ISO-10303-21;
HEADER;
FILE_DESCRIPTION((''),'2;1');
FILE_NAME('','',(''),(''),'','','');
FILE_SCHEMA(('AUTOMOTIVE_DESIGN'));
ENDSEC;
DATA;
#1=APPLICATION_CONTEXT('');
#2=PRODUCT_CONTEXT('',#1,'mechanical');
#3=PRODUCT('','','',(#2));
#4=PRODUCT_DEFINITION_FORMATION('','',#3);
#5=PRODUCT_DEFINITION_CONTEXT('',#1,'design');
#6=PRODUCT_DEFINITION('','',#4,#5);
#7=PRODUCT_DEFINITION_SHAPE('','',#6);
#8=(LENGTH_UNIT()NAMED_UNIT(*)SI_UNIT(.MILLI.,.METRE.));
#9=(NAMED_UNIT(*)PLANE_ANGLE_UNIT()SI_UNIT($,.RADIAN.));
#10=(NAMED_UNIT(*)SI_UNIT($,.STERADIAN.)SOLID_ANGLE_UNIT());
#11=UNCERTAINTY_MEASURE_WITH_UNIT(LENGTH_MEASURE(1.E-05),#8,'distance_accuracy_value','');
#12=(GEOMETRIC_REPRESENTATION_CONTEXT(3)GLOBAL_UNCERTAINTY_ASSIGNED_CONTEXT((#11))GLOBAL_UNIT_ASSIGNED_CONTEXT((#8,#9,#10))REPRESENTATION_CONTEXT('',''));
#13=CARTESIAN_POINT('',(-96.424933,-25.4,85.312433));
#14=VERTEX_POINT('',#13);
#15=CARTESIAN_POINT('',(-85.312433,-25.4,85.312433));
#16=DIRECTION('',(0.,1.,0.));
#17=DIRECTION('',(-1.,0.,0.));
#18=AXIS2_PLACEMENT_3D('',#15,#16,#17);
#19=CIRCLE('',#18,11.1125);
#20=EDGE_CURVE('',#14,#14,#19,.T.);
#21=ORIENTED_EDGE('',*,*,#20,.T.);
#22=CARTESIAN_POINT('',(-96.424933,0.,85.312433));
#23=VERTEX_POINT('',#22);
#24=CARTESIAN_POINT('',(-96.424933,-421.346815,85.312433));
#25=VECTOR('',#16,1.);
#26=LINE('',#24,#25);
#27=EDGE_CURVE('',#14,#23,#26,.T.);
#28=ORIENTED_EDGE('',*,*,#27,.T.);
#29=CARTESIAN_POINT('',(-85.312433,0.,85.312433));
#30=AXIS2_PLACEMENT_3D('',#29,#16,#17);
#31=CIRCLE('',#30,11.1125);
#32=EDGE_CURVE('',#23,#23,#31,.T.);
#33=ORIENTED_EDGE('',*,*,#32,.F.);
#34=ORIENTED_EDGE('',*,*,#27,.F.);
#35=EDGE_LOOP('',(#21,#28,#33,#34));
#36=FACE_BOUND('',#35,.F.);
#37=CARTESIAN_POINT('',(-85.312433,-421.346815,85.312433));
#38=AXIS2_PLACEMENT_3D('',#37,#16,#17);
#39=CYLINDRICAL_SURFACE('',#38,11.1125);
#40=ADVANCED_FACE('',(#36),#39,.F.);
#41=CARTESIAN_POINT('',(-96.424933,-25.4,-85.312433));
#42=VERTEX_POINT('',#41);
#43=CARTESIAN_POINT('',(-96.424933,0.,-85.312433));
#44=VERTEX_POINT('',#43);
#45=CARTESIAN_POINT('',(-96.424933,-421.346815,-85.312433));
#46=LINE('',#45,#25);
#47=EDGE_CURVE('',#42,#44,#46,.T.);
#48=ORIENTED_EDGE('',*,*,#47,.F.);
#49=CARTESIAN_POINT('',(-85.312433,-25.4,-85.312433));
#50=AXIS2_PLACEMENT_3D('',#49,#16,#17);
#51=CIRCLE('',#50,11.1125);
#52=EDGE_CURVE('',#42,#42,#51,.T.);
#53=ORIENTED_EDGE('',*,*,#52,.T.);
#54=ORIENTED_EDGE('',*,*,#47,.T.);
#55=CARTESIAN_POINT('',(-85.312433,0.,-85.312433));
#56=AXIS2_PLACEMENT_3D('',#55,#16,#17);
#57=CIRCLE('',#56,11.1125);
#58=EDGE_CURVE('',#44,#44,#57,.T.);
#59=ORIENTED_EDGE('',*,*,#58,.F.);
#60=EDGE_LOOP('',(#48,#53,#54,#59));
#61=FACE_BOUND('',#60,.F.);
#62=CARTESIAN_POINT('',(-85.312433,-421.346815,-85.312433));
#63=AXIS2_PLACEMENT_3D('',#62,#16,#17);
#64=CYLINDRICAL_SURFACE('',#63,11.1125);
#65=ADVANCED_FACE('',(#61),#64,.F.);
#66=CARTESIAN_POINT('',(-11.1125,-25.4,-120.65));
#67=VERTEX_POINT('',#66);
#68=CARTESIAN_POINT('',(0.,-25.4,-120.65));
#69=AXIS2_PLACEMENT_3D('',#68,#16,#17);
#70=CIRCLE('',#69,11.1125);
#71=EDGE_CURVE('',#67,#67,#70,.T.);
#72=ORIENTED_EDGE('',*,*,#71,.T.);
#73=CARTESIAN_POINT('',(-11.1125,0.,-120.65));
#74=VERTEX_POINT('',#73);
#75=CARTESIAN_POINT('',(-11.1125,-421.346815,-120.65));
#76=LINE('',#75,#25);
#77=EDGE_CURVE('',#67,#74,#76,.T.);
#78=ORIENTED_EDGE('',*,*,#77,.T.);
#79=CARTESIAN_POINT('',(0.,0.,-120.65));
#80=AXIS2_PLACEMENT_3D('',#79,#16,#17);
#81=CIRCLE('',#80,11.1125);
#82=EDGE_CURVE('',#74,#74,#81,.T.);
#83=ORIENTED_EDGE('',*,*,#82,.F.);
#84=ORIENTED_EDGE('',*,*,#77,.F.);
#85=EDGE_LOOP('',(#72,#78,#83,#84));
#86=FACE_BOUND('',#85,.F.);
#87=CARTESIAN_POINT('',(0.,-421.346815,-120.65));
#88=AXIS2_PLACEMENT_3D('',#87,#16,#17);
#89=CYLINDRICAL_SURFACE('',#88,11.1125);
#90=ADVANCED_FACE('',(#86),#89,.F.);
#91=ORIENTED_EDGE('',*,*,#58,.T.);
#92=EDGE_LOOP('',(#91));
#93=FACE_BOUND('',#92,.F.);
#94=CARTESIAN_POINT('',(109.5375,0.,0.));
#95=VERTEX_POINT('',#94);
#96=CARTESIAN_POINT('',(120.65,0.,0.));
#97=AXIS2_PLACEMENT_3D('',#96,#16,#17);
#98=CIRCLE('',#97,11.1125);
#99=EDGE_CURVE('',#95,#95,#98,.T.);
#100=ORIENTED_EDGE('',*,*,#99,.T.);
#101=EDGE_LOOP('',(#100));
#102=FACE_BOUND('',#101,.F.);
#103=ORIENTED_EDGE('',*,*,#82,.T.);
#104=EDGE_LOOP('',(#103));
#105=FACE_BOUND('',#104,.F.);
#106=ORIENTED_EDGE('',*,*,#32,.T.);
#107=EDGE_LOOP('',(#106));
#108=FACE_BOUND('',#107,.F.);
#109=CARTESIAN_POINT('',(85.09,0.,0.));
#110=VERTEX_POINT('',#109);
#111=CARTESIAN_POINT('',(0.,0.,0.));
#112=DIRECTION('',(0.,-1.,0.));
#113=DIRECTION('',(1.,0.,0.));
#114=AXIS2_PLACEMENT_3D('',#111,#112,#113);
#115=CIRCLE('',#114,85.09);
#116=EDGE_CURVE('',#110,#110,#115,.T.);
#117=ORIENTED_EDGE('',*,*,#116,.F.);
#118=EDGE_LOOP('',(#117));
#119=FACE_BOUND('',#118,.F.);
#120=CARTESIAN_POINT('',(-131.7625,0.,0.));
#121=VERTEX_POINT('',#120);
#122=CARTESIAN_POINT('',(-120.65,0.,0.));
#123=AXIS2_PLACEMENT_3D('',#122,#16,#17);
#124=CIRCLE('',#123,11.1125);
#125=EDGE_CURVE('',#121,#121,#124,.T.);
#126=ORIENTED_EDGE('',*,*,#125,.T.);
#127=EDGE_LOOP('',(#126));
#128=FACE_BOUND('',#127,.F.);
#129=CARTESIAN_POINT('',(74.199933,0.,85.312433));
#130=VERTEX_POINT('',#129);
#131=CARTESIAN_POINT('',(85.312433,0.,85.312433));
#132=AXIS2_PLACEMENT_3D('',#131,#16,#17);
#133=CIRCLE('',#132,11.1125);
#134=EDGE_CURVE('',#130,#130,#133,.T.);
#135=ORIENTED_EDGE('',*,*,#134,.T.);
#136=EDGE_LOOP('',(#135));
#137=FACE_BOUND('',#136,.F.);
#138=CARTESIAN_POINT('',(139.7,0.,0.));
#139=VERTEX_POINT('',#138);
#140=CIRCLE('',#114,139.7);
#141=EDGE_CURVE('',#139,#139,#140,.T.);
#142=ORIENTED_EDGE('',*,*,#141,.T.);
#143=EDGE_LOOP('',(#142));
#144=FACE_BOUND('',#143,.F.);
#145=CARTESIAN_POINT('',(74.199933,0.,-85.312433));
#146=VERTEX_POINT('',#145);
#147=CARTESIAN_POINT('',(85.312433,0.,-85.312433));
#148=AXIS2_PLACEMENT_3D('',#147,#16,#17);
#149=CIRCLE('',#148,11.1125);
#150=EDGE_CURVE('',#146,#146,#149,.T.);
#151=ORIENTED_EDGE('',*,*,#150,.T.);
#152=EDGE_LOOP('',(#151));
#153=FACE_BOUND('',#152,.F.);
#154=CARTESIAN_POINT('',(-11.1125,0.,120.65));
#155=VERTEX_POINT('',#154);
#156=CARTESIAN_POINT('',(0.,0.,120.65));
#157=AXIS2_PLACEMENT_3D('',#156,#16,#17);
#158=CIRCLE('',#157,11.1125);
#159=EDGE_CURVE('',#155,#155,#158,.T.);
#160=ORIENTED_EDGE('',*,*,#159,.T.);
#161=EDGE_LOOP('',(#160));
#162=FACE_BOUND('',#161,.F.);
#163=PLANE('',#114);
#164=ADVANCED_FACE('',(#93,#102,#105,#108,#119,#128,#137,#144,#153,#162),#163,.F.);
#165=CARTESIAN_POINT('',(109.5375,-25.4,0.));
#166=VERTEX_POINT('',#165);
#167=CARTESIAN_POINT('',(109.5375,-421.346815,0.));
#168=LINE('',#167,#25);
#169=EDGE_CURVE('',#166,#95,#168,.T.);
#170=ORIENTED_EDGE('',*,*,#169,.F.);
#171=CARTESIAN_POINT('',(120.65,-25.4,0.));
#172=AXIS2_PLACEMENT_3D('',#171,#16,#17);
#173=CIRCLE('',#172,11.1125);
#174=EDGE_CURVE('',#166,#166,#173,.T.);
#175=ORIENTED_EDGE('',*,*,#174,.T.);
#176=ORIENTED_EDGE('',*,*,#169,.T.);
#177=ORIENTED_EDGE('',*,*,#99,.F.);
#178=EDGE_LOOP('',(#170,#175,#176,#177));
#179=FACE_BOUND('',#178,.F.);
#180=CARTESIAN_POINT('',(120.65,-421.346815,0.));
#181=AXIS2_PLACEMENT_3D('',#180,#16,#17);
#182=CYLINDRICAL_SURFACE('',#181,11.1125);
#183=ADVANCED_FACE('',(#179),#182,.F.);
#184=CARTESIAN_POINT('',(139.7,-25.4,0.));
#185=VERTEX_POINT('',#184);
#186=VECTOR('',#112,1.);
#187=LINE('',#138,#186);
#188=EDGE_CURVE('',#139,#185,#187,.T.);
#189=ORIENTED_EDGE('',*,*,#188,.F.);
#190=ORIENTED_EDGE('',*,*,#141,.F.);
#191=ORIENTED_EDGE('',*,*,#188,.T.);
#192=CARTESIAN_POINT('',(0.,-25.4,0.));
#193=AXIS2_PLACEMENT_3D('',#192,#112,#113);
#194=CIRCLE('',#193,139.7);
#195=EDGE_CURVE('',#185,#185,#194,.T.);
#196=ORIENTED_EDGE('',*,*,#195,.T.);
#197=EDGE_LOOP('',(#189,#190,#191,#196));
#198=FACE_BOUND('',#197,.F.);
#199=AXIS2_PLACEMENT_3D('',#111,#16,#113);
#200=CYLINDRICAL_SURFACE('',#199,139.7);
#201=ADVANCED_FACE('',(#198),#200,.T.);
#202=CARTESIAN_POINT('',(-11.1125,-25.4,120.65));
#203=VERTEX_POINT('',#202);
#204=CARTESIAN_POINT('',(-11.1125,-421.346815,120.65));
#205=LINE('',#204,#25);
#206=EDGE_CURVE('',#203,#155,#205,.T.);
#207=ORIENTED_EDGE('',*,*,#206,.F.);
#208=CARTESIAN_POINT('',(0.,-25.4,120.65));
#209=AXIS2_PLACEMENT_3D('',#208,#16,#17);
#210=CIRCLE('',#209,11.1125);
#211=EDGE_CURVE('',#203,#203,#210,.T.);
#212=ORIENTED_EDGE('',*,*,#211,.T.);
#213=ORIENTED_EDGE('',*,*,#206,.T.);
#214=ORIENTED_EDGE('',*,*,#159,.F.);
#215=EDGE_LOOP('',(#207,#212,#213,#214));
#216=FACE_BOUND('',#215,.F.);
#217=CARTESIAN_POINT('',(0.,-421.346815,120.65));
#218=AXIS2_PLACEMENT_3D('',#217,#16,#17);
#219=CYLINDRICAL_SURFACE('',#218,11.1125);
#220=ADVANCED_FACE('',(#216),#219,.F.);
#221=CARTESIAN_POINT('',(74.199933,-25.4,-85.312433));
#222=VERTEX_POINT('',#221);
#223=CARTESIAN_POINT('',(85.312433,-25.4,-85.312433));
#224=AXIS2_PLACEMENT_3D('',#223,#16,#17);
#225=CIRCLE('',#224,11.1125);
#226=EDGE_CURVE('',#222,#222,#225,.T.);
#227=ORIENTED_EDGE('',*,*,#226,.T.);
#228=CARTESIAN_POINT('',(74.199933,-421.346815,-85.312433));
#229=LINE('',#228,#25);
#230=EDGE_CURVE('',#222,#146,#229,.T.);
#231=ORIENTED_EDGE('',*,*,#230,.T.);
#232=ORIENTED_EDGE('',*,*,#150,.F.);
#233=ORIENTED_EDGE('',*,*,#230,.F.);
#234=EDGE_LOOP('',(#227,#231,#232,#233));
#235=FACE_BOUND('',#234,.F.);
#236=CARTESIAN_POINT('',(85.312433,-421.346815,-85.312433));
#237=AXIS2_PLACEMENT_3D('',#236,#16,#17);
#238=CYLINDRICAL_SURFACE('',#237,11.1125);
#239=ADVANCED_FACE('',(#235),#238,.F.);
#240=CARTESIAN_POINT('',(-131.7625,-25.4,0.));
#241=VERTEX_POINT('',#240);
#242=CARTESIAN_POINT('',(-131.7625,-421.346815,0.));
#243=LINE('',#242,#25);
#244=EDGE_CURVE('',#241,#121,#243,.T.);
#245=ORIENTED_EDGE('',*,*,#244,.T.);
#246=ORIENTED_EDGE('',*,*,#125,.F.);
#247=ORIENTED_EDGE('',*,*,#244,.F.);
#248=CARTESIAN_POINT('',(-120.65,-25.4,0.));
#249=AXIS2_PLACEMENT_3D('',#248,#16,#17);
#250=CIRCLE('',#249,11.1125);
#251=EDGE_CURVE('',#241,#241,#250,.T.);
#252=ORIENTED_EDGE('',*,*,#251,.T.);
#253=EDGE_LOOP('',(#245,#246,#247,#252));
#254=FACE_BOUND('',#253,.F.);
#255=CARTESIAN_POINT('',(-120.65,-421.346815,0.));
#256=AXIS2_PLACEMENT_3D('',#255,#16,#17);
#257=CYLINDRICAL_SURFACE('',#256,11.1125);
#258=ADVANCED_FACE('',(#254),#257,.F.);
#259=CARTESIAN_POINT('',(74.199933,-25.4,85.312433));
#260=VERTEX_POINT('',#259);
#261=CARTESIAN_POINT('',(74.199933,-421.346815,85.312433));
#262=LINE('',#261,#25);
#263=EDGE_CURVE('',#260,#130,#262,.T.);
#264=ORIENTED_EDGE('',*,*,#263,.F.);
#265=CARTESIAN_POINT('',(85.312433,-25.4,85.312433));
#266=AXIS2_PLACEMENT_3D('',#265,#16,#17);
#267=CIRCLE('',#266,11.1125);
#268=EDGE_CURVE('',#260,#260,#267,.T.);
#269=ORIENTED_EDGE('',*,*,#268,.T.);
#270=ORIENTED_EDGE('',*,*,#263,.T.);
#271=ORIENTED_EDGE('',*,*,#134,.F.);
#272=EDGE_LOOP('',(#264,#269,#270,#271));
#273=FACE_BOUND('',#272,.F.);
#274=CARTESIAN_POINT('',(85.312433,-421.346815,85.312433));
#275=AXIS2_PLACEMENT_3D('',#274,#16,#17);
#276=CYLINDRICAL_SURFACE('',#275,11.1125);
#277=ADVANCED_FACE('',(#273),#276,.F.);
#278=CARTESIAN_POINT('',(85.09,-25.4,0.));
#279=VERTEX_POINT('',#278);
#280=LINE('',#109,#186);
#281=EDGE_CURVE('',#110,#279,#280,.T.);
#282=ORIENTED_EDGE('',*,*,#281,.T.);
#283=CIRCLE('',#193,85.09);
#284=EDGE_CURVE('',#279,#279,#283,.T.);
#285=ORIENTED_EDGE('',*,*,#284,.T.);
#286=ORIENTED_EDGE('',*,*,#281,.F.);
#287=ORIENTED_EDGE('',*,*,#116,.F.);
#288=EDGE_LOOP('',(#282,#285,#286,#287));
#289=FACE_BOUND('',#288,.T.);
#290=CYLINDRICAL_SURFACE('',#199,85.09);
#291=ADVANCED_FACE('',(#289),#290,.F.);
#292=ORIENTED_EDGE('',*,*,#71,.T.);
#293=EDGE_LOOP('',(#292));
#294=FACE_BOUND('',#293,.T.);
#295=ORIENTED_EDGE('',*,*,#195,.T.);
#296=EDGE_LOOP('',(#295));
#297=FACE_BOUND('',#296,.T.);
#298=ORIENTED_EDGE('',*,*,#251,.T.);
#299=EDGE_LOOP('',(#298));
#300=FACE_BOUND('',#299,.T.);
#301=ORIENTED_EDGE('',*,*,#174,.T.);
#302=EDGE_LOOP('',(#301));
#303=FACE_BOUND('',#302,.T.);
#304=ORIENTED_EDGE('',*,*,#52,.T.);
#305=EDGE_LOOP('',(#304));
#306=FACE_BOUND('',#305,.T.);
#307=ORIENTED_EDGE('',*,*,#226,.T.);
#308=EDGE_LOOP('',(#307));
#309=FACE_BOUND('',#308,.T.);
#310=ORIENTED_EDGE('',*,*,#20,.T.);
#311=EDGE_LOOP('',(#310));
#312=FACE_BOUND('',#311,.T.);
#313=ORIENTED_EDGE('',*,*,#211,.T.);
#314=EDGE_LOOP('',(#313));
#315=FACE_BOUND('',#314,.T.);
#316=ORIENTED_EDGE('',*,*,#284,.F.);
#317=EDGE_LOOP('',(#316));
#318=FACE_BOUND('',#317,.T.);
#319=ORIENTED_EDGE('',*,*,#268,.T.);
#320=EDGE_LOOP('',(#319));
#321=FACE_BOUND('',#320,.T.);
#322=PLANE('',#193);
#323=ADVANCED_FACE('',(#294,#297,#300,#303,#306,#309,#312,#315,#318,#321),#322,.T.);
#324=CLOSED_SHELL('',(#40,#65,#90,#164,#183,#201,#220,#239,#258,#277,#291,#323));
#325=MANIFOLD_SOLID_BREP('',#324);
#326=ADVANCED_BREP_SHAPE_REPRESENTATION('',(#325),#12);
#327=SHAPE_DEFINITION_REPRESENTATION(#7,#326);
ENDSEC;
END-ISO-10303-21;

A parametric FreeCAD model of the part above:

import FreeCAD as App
import Part
import Sketcher

V = App.Vector
Q = App.Units.Quantity

doc = App.newDocument("Part")
body = doc.addObject("PartDesign::Body", "Body")

# Sketch on XZ plane
sketch1 = doc.addObject("Sketcher::SketchObject", "Sketch")
body.addObject(sketch1)
sketch1.AttachmentSupport = (doc.XZ_Plane, [""])
sketch1.MapMode = "FlatFace"
sketch1.addGeometry(Part.Circle(V(0, 0, 0), V(0, 0, 1), 139.7), False)
sketch1.addGeometry(Part.Circle(V(0, 0, 0), V(0, 0, 1), 85.09), False)
sketch1.addConstraint(Sketcher.Constraint("Coincident", 0, 3, -1, 1))
sketch1.addConstraint(Sketcher.Constraint("Coincident", 1, 3, -1, 1))
sketch1.addConstraint(Sketcher.Constraint("Diameter", 0, Q("11 in")))
sketch1.addConstraint(Sketcher.Constraint("Diameter", 1, Q("6.7 in")))
pad1 = doc.addObject("PartDesign::Pad", "Pad")
body.addObject(pad1)
pad1.Profile = sketch1
pad1.Length = Q("1 in")

# Sketch on XZ plane
sketch2 = doc.addObject("Sketcher::SketchObject", "Sketch001")
body.addObject(sketch2)
sketch2.AttachmentSupport = (doc.XZ_Plane, [""])
sketch2.MapMode = "FlatFace"
sketch2.AttachmentOffset = App.Placement(V(0, 0, 1 * 25.4), App.Rotation())
sketch2.addGeometry(Part.Circle(V(-85.312433, 85.312433, 0), V(0, 0, 1), 11.1125), False)
sketch2.addGeometry(Part.Circle(V(0, 120.65, 0), V(0, 0, 1), 11.1125), False)
sketch2.addGeometry(Part.Circle(V(85.312433, 85.312433, 0), V(0, 0, 1), 11.1125), False)
sketch2.addGeometry(Part.Circle(V(120.65, 0, 0), V(0, 0, 1), 11.1125), False)
sketch2.addGeometry(Part.Circle(V(85.312433, -85.312433, 0), V(0, 0, 1), 11.1125), False)
sketch2.addGeometry(Part.Circle(V(0, -120.65, 0), V(0, 0, 1), 11.1125), False)
sketch2.addGeometry(Part.Circle(V(-85.312433, -85.312433, 0), V(0, 0, 1), 11.1125), False)
sketch2.addGeometry(Part.Circle(V(-120.65, 0, 0), V(0, 0, 1), 11.1125), False)
sketch2.addConstraint(Sketcher.Constraint("Equal", 0, 1))
sketch2.addConstraint(Sketcher.Constraint("Equal", 1, 2))
sketch2.addConstraint(Sketcher.Constraint("Equal", 2, 3))
sketch2.addConstraint(Sketcher.Constraint("Equal", 3, 4))
sketch2.addConstraint(Sketcher.Constraint("Equal", 4, 5))
sketch2.addConstraint(Sketcher.Constraint("Equal", 5, 6))
sketch2.addConstraint(Sketcher.Constraint("Equal", 6, 7))
sketch2.addConstraint(Sketcher.Constraint("Symmetric", 0, 3, 4, 3, -1, 1))
sketch2.addConstraint(Sketcher.Constraint("Symmetric", 1, 3, 5, 3, -1, 1))
sketch2.addConstraint(Sketcher.Constraint("Symmetric", 2, 3, 6, 3, -1, 1))
sketch2.addConstraint(Sketcher.Constraint("Symmetric", 3, 3, 7, 3, -1, 1))
sketch2.addConstraint(Sketcher.Constraint("Symmetric", 0, 3, 2, 3, -2))
sketch2.addConstraint(Sketcher.Constraint("PointOnObject", 1, 3, -2))
sketch2.addConstraint(Sketcher.Constraint("PointOnObject", 3, 3, -1))
sketch2.addConstraint(Sketcher.Constraint("Diameter", 0, Q("0.875 in")))
sketch2.addConstraint(Sketcher.Constraint("DistanceY", 5, 3, 1, 3, Q("9.5 in")))
sketch2.addConstraint(Sketcher.Constraint("DistanceX", -1, 1, 3, 3, Q("4.75 in")))
sketch2.addConstraint(Sketcher.Constraint("DistanceX", 0, 3, -1, 1, Q("85.312433 mm")))
sketch2.addConstraint(Sketcher.Constraint("DistanceY", -1, 1, 0, 3, Q("85.312433 mm")))
doc.recompute()
hole = doc.addObject("PartDesign::Hole", "Hole")
body.addObject(hole)
hole.Profile = sketch2
hole.ThreadType = "None"
hole.Diameter = Q("0.875 in")
hole.DepthType = "ThroughAll"

doc.recompute()
